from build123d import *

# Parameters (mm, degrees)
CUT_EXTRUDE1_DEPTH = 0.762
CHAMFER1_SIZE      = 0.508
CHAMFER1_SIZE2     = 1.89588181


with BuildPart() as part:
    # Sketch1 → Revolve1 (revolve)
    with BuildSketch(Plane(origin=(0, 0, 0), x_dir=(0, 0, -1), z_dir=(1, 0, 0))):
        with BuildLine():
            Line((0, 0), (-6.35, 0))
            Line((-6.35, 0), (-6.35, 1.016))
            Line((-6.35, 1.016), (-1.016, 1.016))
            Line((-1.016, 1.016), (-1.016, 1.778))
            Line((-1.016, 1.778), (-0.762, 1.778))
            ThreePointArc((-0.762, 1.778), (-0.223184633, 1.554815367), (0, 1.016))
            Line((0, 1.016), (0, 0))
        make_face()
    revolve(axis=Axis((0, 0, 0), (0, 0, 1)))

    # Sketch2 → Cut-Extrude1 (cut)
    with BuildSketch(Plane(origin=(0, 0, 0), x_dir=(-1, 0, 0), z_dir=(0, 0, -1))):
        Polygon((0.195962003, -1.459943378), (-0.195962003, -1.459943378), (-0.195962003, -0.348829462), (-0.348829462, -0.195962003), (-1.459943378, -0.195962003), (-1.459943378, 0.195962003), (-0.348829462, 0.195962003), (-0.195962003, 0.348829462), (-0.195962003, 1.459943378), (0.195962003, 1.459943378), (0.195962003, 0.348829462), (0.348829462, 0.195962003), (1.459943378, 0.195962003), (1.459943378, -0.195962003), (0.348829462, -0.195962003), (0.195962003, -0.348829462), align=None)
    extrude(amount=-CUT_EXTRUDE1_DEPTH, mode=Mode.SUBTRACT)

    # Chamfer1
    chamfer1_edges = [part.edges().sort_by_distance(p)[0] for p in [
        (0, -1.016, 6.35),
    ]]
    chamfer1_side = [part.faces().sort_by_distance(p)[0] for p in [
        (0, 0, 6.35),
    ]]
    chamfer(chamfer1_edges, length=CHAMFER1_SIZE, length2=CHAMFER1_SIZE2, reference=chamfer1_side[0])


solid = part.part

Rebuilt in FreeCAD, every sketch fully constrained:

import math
import FreeCAD as App
import Part
import Sketcher
from FreeCAD import Vector
Q = App.Units.Quantity


def edges_at(feature, points):
    """Names of the edges that pass closest to the given points."""
    edges = feature.Shape.Edges
    near = lambda p: min(range(len(edges)), key=lambda i: edges[i].distToShape(Part.Vertex(*p))[0])
    return sorted({f"Edge{near(p) + 1}" for p in points})

doc = App.newDocument("Part")
body = doc.addObject("PartDesign::Body", "Body")

# Sketch on YZ plane
sketch1 = doc.addObject("Sketcher::SketchObject", "Sketch")
body.addObject(sketch1)
sketch1.AttachmentSupport = (doc.YZ_Plane, [""])
sketch1.MapMode = "FlatFace"
sketch1.addGeometry([
    Part.LineSegment(Vector(0, 6.35, 0), Vector(0, 0, 0)),  # 0
    Part.LineSegment(Vector(0, 0, 0), Vector(1.02, 0, 0)),  # 1
    Part.ArcOfCircle(Part.Circle(Vector(1.02, 0.76, 0), Vector(0, 0, 1), 0.76), math.radians(-90), math.radians(0)),  # 2
    Part.LineSegment(Vector(1.78, 0.76, 0), Vector(1.78, 1.02, 0)),  # 3
    Part.LineSegment(Vector(1.78, 1.02, 0), Vector(1.02, 1.02, 0)),  # 4
    Part.LineSegment(Vector(1.02, 1.02, 0), Vector(1.02, 6.35, 0)),  # 5
    Part.LineSegment(Vector(1.02, 6.35, 0), Vector(0, 6.35, 0)),  # 6
], False)
sketch1.addConstraint([
    Sketcher.Constraint("Coincident", 0, 2, 1, 1),
    Sketcher.Constraint("Tangent", 1, 2, 2, 1),
    Sketcher.Constraint("Tangent", 2, 2, 3, 1),
    Sketcher.Constraint("Coincident", 3, 2, 4, 1),
    Sketcher.Constraint("Coincident", 4, 2, 5, 1),
    Sketcher.Constraint("Coincident", 5, 2, 6, 1),
    Sketcher.Constraint("Coincident", 6, 2, 0, 1),
    Sketcher.Constraint("Vertical", 0),
    Sketcher.Constraint("Horizontal", 1),
    Sketcher.Constraint("Vertical", 3),
    Sketcher.Constraint("Horizontal", 4),
    Sketcher.Constraint("Vertical", 5),
    Sketcher.Constraint("Horizontal", 6),
    Sketcher.Constraint("Coincident", 0, 2, -1, 1),
    Sketcher.Constraint("Vertical", 1, 2, 4, 2),
    Sketcher.Constraint("Radius", 2, Q("0.03 in")),
    Sketcher.Constraint("DistanceX", 1, 1, 1, 2, Q("0.04 in")),
    Sketcher.Constraint("DistanceY", 0, 2, 0, 1, Q("0.25 in")),
    Sketcher.Constraint("DistanceY", 3, 1, 3, 2, Q("0.01 in")),
])
revolution = doc.addObject("PartDesign::Revolution", "Revolution")
body.addObject(revolution)
revolution.Profile = sketch1
revolution.ReferenceAxis = (sketch1, ["V_Axis"])
revolution.Angle = 360

# Sketch on XY plane
sketch2 = doc.addObject("Sketcher::SketchObject", "Sketch001")
body.addObject(sketch2)
sketch2.AttachmentSupport = (doc.XY_Plane, [""])
sketch2.MapMode = "FlatFace"
sketch2.addGeometry([
    Part.LineSegment(Vector(0.2, -1.46, 0), Vector(-0.2, -1.46, 0)),  # 0
    Part.LineSegment(Vector(-0.2, -1.46, 0), Vector(-0.2, -0.35, 0)),  # 1
    Part.LineSegment(Vector(-0.2, -0.35, 0), Vector(-0.35, -0.2, 0)),  # 2
    Part.LineSegment(Vector(-0.35, -0.2, 0), Vector(-1.46, -0.2, 0)),  # 3
    Part.LineSegment(Vector(-1.46, -0.2, 0), Vector(-1.46, 0.2, 0)),  # 4
    Part.LineSegment(Vector(-1.46, 0.2, 0), Vector(-0.35, 0.2, 0)),  # 5
    Part.LineSegment(Vector(-0.35, 0.2, 0), Vector(-0.2, 0.35, 0)),  # 6
    Part.LineSegment(Vector(-0.2, 0.35, 0), Vector(-0.2, 1.46, 0)),  # 7
    Part.LineSegment(Vector(-0.2, 1.46, 0), Vector(0.2, 1.46, 0)),  # 8
    Part.LineSegment(Vector(0.2, 1.46, 0), Vector(0.2, 0.35, 0)),  # 9
    Part.LineSegment(Vector(0.2, 0.35, 0), Vector(0.35, 0.2, 0)),  # 10
    Part.LineSegment(Vector(0.35, 0.2, 0), Vector(1.46, 0.2, 0)),  # 11
    Part.LineSegment(Vector(1.46, 0.2, 0), Vector(1.46, -0.2, 0)),  # 12
    Part.LineSegment(Vector(1.46, -0.2, 0), Vector(0.35, -0.2, 0)),  # 13
    Part.LineSegment(Vector(0.35, -0.2, 0), Vector(0.2, -0.35, 0)),  # 14
    Part.LineSegment(Vector(0.2, -0.35, 0), Vector(0.2, -1.46, 0)),  # 15
], False)
sketch2.addConstraint([
    Sketcher.Constraint("Coincident", 0, 2, 1, 1),
    Sketcher.Constraint("Coincident", 1, 2, 2, 1),
    Sketcher.Constraint("Coincident", 2, 2, 3, 1),
    Sketcher.Constraint("Coincident", 3, 2, 4, 1),
    Sketcher.Constraint("Coincident", 4, 2, 5, 1),
    Sketcher.Constraint("Coincident", 5, 2, 6, 1),
    Sketcher.Constraint("Coincident", 6, 2, 7, 1),
    Sketcher.Constraint("Coincident", 7, 2, 8, 1),
    Sketcher.Constraint("Coincident", 8, 2, 9, 1),
    Sketcher.Constraint("Coincident", 9, 2, 10, 1),
    Sketcher.Constraint("Coincident", 10, 2, 11, 1),
    Sketcher.Constraint("Coincident", 11, 2, 12, 1),
    Sketcher.Constraint("Coincident", 12, 2, 13, 1),
    Sketcher.Constraint("Coincident", 13, 2, 14, 1),
    Sketcher.Constraint("Coincident", 14, 2, 15, 1),
    Sketcher.Constraint("Coincident", 15, 2, 0, 1),
    Sketcher.Constraint("Horizontal", 0),
    Sketcher.Constraint("Vertical", 1),
    Sketcher.Constraint("Horizontal", 3),
    Sketcher.Constraint("Vertical", 4),
    Sketcher.Constraint("Horizontal", 5),
    Sketcher.Constraint("Vertical", 7),
    Sketcher.Constraint("Horizontal", 8),
    Sketcher.Constraint("Vertical", 9),
    Sketcher.Constraint("Horizontal", 11),
    Sketcher.Constraint("Vertical", 12),
    Sketcher.Constraint("Horizontal", 13),
    Sketcher.Constraint("Vertical", 15),
    Sketcher.Constraint("Symmetric", 0, 2, 8, 2, -1, 1),
    Sketcher.Constraint("Symmetric", 2, 2, 10, 2, -1, 1),
    Sketcher.Constraint("Symmetric", 4, 2, 12, 2, -1, 1),
    Sketcher.Constraint("Symmetric", 6, 2, 14, 2, -1, 1),
    Sketcher.Constraint("Symmetric", 6, 2, 9, 2, -2),
    Sketcher.Constraint("Symmetric", 5, 2, 10, 2, -2),
    Sketcher.Constraint("Perpendicular", 2, 6),
    Sketcher.Constraint("Perpendicular", 6, 10),
    Sketcher.Constraint("Perpendicular", 10, 14),
    Sketcher.Constraint("Equal", 13, 1),
    Sketcher.Constraint("Equal", 8, 4),
    Sketcher.Constraint("DistanceX", 0, 2, 0, 1, 0.391924),
    Sketcher.Constraint("DistanceX", 3, 2, 3, 1, 1.111114),
    Sketcher.Constraint("DistanceY", 1, 2, -1, 1, 0.348829),
])
pocket1 = doc.addObject("PartDesign::Pocket", "Pocket")
body.addObject(pocket1)
pocket1.Profile = sketch2
pocket1.Length = Q("0.03 in")
pocket1.Reversed = True
doc.recompute()

chamfer = doc.addObject("PartDesign::Chamfer", "Chamfer")
body.addObject(chamfer)
chamfer.Base = (pocket1, edges_at(pocket1, [(0, -1.016, 6.35)]))
chamfer.ChamferType = "Two distances"
chamfer.Size = Q("0.02 in")
chamfer.Size2 = 1.895882
chamfer.FlipDirection = True

doc.recompute()
